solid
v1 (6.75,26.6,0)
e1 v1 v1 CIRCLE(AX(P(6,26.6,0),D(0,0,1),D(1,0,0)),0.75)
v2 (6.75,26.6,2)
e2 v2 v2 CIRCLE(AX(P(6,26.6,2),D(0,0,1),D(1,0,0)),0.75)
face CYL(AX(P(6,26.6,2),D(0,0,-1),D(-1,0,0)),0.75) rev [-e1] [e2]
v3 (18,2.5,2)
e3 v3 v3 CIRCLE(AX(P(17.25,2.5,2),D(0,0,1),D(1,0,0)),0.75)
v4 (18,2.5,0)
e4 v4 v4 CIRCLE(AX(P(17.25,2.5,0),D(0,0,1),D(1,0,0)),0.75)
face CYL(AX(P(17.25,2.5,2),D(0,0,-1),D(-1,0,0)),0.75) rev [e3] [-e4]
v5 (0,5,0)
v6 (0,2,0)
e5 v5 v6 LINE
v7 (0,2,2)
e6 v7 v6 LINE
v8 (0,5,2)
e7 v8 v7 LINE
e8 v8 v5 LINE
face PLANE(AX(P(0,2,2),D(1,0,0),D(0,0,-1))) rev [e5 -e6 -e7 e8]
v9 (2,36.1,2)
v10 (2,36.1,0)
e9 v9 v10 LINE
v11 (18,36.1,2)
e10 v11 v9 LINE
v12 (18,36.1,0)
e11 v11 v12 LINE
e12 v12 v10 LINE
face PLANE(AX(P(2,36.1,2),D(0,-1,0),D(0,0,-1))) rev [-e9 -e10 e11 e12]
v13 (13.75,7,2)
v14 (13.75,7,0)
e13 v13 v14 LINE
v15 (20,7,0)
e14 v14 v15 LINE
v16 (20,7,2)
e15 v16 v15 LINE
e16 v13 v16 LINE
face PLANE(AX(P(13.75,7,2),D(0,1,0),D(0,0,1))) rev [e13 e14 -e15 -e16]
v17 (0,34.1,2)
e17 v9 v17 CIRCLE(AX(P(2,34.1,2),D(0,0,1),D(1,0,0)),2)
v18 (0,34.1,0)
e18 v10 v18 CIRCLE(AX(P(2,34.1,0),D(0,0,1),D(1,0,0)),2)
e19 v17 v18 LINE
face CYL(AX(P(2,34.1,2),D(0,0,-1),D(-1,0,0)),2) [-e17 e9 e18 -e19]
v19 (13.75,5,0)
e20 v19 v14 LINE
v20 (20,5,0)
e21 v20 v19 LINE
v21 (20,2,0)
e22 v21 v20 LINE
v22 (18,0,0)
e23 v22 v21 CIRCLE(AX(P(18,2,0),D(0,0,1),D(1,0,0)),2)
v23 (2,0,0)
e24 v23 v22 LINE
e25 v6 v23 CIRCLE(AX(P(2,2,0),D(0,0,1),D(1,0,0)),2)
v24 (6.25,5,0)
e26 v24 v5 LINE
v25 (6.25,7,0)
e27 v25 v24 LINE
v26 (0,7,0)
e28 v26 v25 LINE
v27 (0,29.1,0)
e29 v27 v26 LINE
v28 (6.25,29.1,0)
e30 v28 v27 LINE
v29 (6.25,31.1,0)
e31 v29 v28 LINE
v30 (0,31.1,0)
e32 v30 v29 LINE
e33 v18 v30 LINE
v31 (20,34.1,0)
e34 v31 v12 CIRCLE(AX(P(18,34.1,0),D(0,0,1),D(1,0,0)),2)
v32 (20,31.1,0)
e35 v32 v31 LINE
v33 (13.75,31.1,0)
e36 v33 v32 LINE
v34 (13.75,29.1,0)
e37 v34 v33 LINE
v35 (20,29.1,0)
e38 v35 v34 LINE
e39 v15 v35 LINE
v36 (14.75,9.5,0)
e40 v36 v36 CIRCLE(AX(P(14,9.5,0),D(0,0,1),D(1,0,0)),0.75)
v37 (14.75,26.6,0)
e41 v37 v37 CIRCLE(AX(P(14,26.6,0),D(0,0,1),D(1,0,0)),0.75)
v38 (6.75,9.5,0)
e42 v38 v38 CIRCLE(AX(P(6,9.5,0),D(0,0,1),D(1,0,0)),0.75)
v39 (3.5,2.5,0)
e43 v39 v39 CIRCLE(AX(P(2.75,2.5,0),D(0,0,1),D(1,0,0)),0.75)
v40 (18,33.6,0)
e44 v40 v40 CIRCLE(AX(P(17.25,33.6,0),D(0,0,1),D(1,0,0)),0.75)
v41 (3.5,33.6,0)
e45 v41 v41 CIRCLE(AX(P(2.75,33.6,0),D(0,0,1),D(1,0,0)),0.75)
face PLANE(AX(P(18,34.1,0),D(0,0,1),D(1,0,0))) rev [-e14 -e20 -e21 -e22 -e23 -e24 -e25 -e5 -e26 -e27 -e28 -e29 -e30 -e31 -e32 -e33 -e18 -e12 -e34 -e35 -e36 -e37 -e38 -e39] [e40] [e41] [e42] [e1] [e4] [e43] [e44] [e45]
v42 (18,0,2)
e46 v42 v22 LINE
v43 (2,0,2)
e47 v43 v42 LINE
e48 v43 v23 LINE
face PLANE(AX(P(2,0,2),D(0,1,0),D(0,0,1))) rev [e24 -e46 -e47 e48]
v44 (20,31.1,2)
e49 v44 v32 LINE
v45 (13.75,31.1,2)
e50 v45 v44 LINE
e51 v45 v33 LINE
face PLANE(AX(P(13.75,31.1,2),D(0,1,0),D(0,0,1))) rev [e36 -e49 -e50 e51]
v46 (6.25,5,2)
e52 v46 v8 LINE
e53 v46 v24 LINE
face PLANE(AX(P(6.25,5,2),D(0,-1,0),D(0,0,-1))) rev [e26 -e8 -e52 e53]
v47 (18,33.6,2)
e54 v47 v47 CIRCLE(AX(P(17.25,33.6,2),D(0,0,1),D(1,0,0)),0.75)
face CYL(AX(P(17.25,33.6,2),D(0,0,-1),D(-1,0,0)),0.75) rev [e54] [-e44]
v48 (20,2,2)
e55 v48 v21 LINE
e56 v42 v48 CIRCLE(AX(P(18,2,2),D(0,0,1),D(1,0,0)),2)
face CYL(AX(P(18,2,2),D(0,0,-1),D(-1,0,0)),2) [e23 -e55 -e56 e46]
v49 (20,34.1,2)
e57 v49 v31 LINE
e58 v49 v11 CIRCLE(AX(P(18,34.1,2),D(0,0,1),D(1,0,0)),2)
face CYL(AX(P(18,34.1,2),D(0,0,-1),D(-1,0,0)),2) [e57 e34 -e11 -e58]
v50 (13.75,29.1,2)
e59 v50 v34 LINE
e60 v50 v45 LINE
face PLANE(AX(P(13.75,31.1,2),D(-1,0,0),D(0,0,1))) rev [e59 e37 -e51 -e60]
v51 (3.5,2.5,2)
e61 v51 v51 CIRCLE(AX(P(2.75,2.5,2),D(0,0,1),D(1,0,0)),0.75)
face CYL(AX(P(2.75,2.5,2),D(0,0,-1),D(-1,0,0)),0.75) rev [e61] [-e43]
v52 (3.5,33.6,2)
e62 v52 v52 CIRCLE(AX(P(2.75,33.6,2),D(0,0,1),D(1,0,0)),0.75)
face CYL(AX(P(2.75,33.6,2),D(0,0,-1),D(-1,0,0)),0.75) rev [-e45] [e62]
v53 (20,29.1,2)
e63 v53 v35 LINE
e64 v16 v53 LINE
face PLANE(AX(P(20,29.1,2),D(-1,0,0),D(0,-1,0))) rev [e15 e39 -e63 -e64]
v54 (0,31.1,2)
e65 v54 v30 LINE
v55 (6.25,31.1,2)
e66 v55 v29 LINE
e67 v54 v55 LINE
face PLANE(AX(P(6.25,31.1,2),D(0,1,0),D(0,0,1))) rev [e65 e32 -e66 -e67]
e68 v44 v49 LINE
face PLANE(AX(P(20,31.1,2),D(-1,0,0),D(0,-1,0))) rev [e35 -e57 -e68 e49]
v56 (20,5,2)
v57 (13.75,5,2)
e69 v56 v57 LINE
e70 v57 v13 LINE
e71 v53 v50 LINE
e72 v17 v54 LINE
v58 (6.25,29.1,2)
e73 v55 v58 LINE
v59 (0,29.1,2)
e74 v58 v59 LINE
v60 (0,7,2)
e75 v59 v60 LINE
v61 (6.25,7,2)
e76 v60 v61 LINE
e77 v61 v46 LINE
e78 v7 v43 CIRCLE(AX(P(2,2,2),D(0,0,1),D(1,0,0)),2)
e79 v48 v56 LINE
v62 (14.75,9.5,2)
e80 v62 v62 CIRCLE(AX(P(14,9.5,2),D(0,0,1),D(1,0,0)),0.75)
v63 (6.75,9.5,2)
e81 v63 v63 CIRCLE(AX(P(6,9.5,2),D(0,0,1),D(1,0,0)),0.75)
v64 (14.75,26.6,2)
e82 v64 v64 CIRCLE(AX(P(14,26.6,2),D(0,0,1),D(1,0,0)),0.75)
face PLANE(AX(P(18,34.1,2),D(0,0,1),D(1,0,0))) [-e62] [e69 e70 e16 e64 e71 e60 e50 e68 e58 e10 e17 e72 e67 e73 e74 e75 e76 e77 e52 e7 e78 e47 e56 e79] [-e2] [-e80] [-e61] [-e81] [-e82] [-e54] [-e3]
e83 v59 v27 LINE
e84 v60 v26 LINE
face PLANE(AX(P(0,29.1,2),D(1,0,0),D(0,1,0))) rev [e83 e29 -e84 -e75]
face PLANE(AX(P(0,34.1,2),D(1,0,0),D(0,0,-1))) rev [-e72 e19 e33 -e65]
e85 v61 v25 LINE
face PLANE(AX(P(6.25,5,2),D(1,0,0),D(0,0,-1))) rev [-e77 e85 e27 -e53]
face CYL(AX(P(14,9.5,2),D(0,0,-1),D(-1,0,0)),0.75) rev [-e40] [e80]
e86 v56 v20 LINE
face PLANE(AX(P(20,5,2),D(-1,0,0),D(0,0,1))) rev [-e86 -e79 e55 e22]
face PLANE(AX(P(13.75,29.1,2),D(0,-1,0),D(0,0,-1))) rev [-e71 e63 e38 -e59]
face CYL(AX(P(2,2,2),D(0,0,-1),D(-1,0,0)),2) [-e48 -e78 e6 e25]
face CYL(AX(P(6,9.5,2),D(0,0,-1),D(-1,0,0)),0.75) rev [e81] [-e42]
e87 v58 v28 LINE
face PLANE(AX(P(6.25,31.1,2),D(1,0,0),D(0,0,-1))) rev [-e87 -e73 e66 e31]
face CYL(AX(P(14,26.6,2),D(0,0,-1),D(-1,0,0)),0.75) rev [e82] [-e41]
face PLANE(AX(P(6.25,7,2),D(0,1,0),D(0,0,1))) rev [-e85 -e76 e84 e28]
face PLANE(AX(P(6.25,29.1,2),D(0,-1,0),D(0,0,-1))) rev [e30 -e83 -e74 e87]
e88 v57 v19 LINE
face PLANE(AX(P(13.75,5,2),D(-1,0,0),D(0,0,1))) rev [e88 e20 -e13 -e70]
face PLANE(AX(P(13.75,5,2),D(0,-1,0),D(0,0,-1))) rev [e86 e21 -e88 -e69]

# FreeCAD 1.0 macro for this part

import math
import FreeCAD as App
import Part
import Sketcher
Q = App.Units.Quantity

doc = App.newDocument("Part")
params = doc.addObject("Spreadsheet::Sheet", "Params")
for row, (alias, value) in enumerate([
    ("sketch1_radius", "2 mm"),
    ("sketch1_diameter", "1.5 mm"),
    ("sketch1_width", "16 mm"),
    ("sketch1_height", "3 mm"),
    ("sketch1_height2", "2 mm"),
    ("pad1_length", "2 mm"),
], start=1):
    params.set(f"A{row}", alias)
    params.set(f"B{row}", "=" + value)
    params.setAlias(f"B{row}", alias)

body = doc.addObject("PartDesign::Body", "Body")

# Sketch on XY plane
sketch1 = body.newObject("Sketcher::SketchObject", "Sketch")
sketch1.AttachmentSupport = (doc.getObject("XY_Plane"), [""])
sketch1.MapMode = "FlatFace"
sketch1.addGeometry(Part.LineSegment(App.Vector(18, 36.1, 0), App.Vector(2, 36.1, 0)), False)
sketch1.addGeometry(Part.ArcOfCircle(Part.Circle(App.Vector(2, 34.1, 0), App.Vector(0, 0, 1), 2), math.radians(90), math.radians(180)), False)
sketch1.addGeometry(Part.LineSegment(App.Vector(0, 34.1, 0), App.Vector(0, 31.1, 0)), False)
sketch1.addGeometry(Part.LineSegment(App.Vector(0, 31.1, 0), App.Vector(6.25, 31.1, 0)), False)
sketch1.addGeometry(Part.LineSegment(App.Vector(6.25, 31.1, 0), App.Vector(6.25, 29.1, 0)), False)
sketch1.addGeometry(Part.LineSegment(App.Vector(6.25, 29.1, 0), App.Vector(0, 29.1, 0)), False)
sketch1.addGeometry(Part.LineSegment(App.Vector(0, 29.1, 0), App.Vector(0, 7, 0)), False)
sketch1.addGeometry(Part.LineSegment(App.Vector(0, 7, 0), App.Vector(6.25, 7, 0)), False)
sketch1.addGeometry(Part.LineSegment(App.Vector(6.25, 7, 0), App.Vector(6.25, 5, 0)), False)
sketch1.addGeometry(Part.LineSegment(App.Vector(6.25, 5, 0), App.Vector(0, 5, 0)), False)
sketch1.addGeometry(Part.LineSegment(App.Vector(0, 5, 0), App.Vector(0, 2, 0)), False)
sketch1.addGeometry(Part.ArcOfCircle(Part.Circle(App.Vector(2, 2, 0), App.Vector(0, 0, 1), 2), math.radians(-180), math.radians(-90)), False)
sketch1.addGeometry(Part.LineSegment(App.Vector(2, 0, 0), App.Vector(18, 0, 0)), False)
sketch1.addGeometry(Part.ArcOfCircle(Part.Circle(App.Vector(18, 2, 0), App.Vector(0, 0, 1), 2), math.radians(-90), math.radians(0)), False)
sketch1.addGeometry(Part.LineSegment(App.Vector(20, 2, 0), App.Vector(20, 5, 0)), False)
sketch1.addGeometry(Part.LineSegment(App.Vector(20, 5, 0), App.Vector(13.75, 5, 0)), False)
sketch1.addGeometry(Part.LineSegment(App.Vector(13.75, 5, 0), App.Vector(13.75, 7, 0)), False)
sketch1.addGeometry(Part.LineSegment(App.Vector(13.75, 7, 0), App.Vector(20, 7, 0)), False)
sketch1.addGeometry(Part.LineSegment(App.Vector(20, 7, 0), App.Vector(20, 29.1, 0)), False)
sketch1.addGeometry(Part.LineSegment(App.Vector(20, 29.1, 0), App.Vector(13.75, 29.1, 0)), False)
sketch1.addGeometry(Part.LineSegment(App.Vector(13.75, 29.1, 0), App.Vector(13.75, 31.1, 0)), False)
sketch1.addGeometry(Part.LineSegment(App.Vector(13.75, 31.1, 0), App.Vector(20, 31.1, 0)), False)
sketch1.addGeometry(Part.LineSegment(App.Vector(20, 31.1, 0), App.Vector(20, 34.1, 0)), False)
sketch1.addGeometry(Part.ArcOfCircle(Part.Circle(App.Vector(18, 34.1, 0), App.Vector(0, 0, 1), 2), math.radians(0), math.radians(90)), False)
sketch1.addGeometry(Part.Circle(App.Vector(17.25, 2.5, 0), App.Vector(0, 0, 1), 0.75), False)
sketch1.addGeometry(Part.Circle(App.Vector(14, 9.5, 0), App.Vector(0, 0, 1), 0.75), False)
sketch1.addGeometry(Part.Circle(App.Vector(2.75, 2.5, 0), App.Vector(0, 0, 1), 0.75), False)
sketch1.addGeometry(Part.Circle(App.Vector(6, 9.5, 0), App.Vector(0, 0, 1), 0.75), False)
sketch1.addGeometry(Part.Circle(App.Vector(17.25, 33.6, 0), App.Vector(0, 0, 1), 0.75), False)
sketch1.addGeometry(Part.Circle(App.Vector(14, 26.6, 0), App.Vector(0, 0, 1), 0.75), False)
sketch1.addGeometry(Part.Circle(App.Vector(6, 26.6, 0), App.Vector(0, 0, 1), 0.75), False)
sketch1.addGeometry(Part.Circle(App.Vector(2.75, 33.6, 0), App.Vector(0, 0, 1), 0.75), False)
sketch1.addConstraint(Sketcher.Constraint("Tangent", 0, 2, 1, 1))
sketch1.addConstraint(Sketcher.Constraint("Tangent", 1, 2, 2, 1))
sketch1.addConstraint(Sketcher.Constraint("Coincident", 2, 2, 3, 1))
sketch1.addConstraint(Sketcher.Constraint("Coincident", 3, 2, 4, 1))
sketch1.addConstraint(Sketcher.Constraint("Coincident", 4, 2, 5, 1))
sketch1.addConstraint(Sketcher.Constraint("Coincident", 5, 2, 6, 1))
sketch1.addConstraint(Sketcher.Constraint("Coincident", 6, 2, 7, 1))
sketch1.addConstraint(Sketcher.Constraint("Coincident", 7, 2, 8, 1))
sketch1.addConstraint(Sketcher.Constraint("Coincident", 8, 2, 9, 1))
sketch1.addConstraint(Sketcher.Constraint("Coincident", 9, 2, 10, 1))
sketch1.addConstraint(Sketcher.Constraint("Tangent", 10, 2, 11, 1))
sketch1.addConstraint(Sketcher.Constraint("Tangent", 11, 2, 12, 1))
sketch1.addConstraint(Sketcher.Constraint("Tangent", 12, 2, 13, 1))
sketch1.addConstraint(Sketcher.Constraint("Tangent", 13, 2, 14, 1))
sketch1.addConstraint(Sketcher.Constraint("Coincident", 14, 2, 15, 1))
sketch1.addConstraint(Sketcher.Constraint("Coincident", 15, 2, 16, 1))
sketch1.addConstraint(Sketcher.Constraint("Coincident", 16, 2, 17, 1))
sketch1.addConstraint(Sketcher.Constraint("Coincident", 17, 2, 18, 1))
sketch1.addConstraint(Sketcher.Constraint("Coincident", 18, 2, 19, 1))
sketch1.addConstraint(Sketcher.Constraint("Coincident", 19, 2, 20, 1))
sketch1.addConstraint(Sketcher.Constraint("Coincident", 20, 2, 21, 1))
sketch1.addConstraint(Sketcher.Constraint("Coincident", 21, 2, 22, 1))
sketch1.addConstraint(Sketcher.Constraint("Tangent", 22, 2, 23, 1))
sketch1.addConstraint(Sketcher.Constraint("Tangent", 23, 2, 0, 1))
sketch1.addConstraint(Sketcher.Constraint("Horizontal", 0))
sketch1.addConstraint(Sketcher.Constraint("Vertical", 2))
sketch1.addConstraint(Sketcher.Constraint("Horizontal", 3))
sketch1.addConstraint(Sketcher.Constraint("Vertical", 4))
sketch1.addConstraint(Sketcher.Constraint("Horizontal", 5))
sketch1.addConstraint(Sketcher.Constraint("Vertical", 6))
sketch1.addConstraint(Sketcher.Constraint("Horizontal", 7))
sketch1.addConstraint(Sketcher.Constraint("Vertical", 8))
sketch1.addConstraint(Sketcher.Constraint("Horizontal", 9))
sketch1.addConstraint(Sketcher.Constraint("Vertical", 10))
sketch1.addConstraint(Sketcher.Constraint("Horizontal", 12))
sketch1.addConstraint(Sketcher.Constraint("Vertical", 14))
sketch1.addConstraint(Sketcher.Constraint("Horizontal", 15))
sketch1.addConstraint(Sketcher.Constraint("Vertical", 16))
sketch1.addConstraint(Sketcher.Constraint("Horizontal", 17))
sketch1.addConstraint(Sketcher.Constraint("Vertical", 18))
sketch1.addConstraint(Sketcher.Constraint("Horizontal", 19))
sketch1.addConstraint(Sketcher.Constraint("Vertical", 20))
sketch1.addConstraint(Sketcher.Constraint("Horizontal", 21))
sketch1.addConstraint(Sketcher.Constraint("Vertical", 22))
sketch1.addConstraint(Sketcher.Constraint("Equal", 1, 11))
sketch1.addConstraint(Sketcher.Constraint("Equal", 11, 13))
sketch1.addConstraint(Sketcher.Constraint("Equal", 13, 23))
sketch1.addConstraint(Sketcher.Constraint("Equal", 24, 25))
sketch1.addConstraint(Sketcher.Constraint("Equal", 25, 26))
sketch1.addConstraint(Sketcher.Constraint("Equal", 26, 27))
sketch1.addConstraint(Sketcher.Constraint("Equal", 27, 28))
sketch1.addConstraint(Sketcher.Constraint("Equal", 28, 29))
sketch1.addConstraint(Sketcher.Constraint("Equal", 29, 30))
sketch1.addConstraint(Sketcher.Constraint("Equal", 30, 31))
sketch1.addConstraint(Sketcher.Constraint("PointOnObject", 1, 2, -2))
sketch1.addConstraint(Sketcher.Constraint("PointOnObject", 5, 2, -2))
sketch1.addConstraint(Sketcher.Constraint("PointOnObject", 9, 2, -2))
sketch1.addConstraint(Sketcher.Constraint("PointOnObject", 11, 2, -1))
sketch1.addConstraint(Sketcher.Constraint("Horizontal", 24, 3, 26, 3))
sketch1.addConstraint(Sketcher.Constraint("Horizontal", 25, 3, 27, 3))
sketch1.addConstraint(Sketcher.Constraint("Horizontal", 29, 3, 30, 3))
sketch1.addConstraint(Sketcher.Constraint("Horizontal", 28, 3, 31, 3))
sketch1.addConstraint(Sketcher.Constraint("Horizontal", 9, 2, 14, 2))
sketch1.addConstraint(Sketcher.Constraint("Horizontal", 7, 2, 16, 2))
sketch1.addConstraint(Sketcher.Constraint("Horizontal", 5, 2, 18, 2))
sketch1.addConstraint(Sketcher.Constraint("Horizontal", 3, 2, 20, 2))
sketch1.addConstraint(Sketcher.Constraint("Vertical", 13, 3, 23, 3))
sketch1.addConstraint(Sketcher.Constraint("Vertical", 24, 3, 28, 3))
sketch1.addConstraint(Sketcher.Constraint("Vertical", 25, 3, 29, 3))
sketch1.addConstraint(Sketcher.Constraint("Vertical", 27, 3, 30, 3))
sketch1.addConstraint(Sketcher.Constraint("Vertical", 26, 3, 31, 3))
sketch1.addConstraint(Sketcher.Constraint("Vertical", 4, 2, 7, 2))
sketch1.addConstraint(Sketcher.Constraint("Vertical", 14, 2, 17, 2))
sketch1.addConstraint(Sketcher.Constraint("Vertical", 16, 2, 19, 2))
sketch1.addConstraint(Sketcher.Constraint("Equal", 9, 15))
sketch1.addConstraint(Sketcher.Constraint("Equal", 4, 8))
sketch1.addConstraint(Sketcher.Constraint("Equal", 2, 10))
sketch1.addConstraint(Sketcher.Constraint("Radius", 1, Q("2 mm")))
sketch1.addConstraint(Sketcher.Constraint("Diameter", 24, Q("1.5 mm")))
sketch1.addConstraint(Sketcher.Constraint("DistanceX", 0, 2, 0, 1, Q("16 mm")))
sketch1.addConstraint(Sketcher.Constraint("DistanceY", 2, 2, 2, 1, Q("3 mm")))
sketch1.addConstraint(Sketcher.Constraint("DistanceY", 4, 2, 4, 1, Q("2 mm")))
sketch1.addConstraint(Sketcher.Constraint("DistanceY", 6, 2, 6, 1, Q("22.1 mm")))
sketch1.addConstraint(Sketcher.Constraint("DistanceX", -1, 1, 25, 3, Q("14 mm")))
sketch1.addConstraint(Sketcher.Constraint("DistanceX", -1, 1, 27, 3, Q("6 mm")))
sketch1.addConstraint(Sketcher.Constraint("DistanceY", 24, 3, 25, 3, Q("7 mm")))
sketch1.addConstraint(Sketcher.Constraint("DistanceY", 29, 3, 28, 3, Q("7 mm")))
sketch1.addConstraint(Sketcher.Constraint("DistanceX", 3, 1, 3, 2, Q("6.25 mm")))
sketch1.addConstraint(Sketcher.Constraint("DistanceY", -1, 1, 24, 3, Q("2.5 mm")))
sketch1.addConstraint(Sketcher.Constraint("DistanceY", -1, 1, 28, 3, Q("33.6 mm")))
sketch1.addConstraint(Sketcher.Constraint("DistanceX", 26, 3, 24, 3, Q("14.5 mm")))
sketch1.addConstraint(Sketcher.Constraint("DistanceX", 31, 3, 3, 2, Q("3.5 mm")))
sketch1.setExpression("Constraints[77]", "Params.sketch1_radius")
sketch1.setExpression("Constraints[78]", "Params.sketch1_diameter")
sketch1.setExpression("Constraints[79]", "Params.sketch1_width")
sketch1.setExpression("Constraints[80]", "Params.sketch1_height")
sketch1.setExpression("Constraints[81]", "Params.sketch1_height2")
pad1 = body.newObject("PartDesign::Pad", "Pad")
pad1.Profile = sketch1
pad1.setExpression("Length", "Params.pad1_length")

doc.recompute()
